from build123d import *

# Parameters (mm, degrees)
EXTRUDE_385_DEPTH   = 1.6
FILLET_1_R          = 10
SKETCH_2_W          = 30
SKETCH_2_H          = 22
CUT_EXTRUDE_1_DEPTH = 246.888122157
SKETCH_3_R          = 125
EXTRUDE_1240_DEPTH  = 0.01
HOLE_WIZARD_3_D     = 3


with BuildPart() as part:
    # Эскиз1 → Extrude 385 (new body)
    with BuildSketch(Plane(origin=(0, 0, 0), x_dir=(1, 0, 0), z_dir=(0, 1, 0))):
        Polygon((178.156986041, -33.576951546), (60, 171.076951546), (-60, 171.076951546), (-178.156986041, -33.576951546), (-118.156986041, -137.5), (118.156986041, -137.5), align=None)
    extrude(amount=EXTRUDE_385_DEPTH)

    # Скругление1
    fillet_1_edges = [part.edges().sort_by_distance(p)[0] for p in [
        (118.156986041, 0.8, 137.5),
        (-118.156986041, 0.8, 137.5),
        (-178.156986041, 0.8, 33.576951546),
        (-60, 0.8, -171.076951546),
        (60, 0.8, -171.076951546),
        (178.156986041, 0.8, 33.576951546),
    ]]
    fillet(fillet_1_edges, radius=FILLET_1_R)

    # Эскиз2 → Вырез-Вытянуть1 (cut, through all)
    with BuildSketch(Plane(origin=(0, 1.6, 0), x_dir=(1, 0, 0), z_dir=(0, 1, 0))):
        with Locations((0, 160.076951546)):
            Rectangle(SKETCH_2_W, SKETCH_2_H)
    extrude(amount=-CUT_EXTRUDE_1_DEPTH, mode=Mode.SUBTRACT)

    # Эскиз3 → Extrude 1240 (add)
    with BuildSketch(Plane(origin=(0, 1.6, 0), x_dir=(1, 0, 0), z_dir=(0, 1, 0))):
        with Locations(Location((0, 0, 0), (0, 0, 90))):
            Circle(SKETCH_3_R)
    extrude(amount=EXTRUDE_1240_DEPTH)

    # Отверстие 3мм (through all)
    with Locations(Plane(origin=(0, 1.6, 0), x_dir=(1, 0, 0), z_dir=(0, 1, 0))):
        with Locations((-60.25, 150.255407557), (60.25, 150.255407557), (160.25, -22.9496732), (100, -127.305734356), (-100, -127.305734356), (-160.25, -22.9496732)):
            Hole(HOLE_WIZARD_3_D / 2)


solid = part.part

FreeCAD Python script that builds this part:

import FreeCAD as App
import Part
import Sketcher

V = App.Vector
Q = App.Units.Quantity


def edges_at(feature, points):
    """Names of the edges that pass closest to the given points."""
    edges = feature.Shape.Edges
    near = lambda p: min(range(len(edges)), key=lambda i: edges[i].distToShape(Part.Vertex(*p))[0])
    return sorted({f"Edge{near(p) + 1}" for p in points})


def add_polygon(sketch, points):
    """Adds a closed chain of lines whose ends are joined by coincident constraints."""
    first, n = sketch.GeometryCount, len(points)
    for a, b in zip(points, points[1:] + points[:1]):
        sketch.addGeometry(Part.LineSegment(App.Vector(*a, 0), App.Vector(*b, 0)), False)
    for i in range(n):
        sketch.addConstraint(Sketcher.Constraint("Coincident", first + i, 2, first + (i + 1) % n, 1))

doc = App.newDocument("Part")
body = doc.addObject("PartDesign::Body", "Body")

sketch1 = body.newObject("Sketcher::SketchObject", "Sketch")
sketch1.AttachmentSupport = (doc.getObject("XZ_Plane"), [""])
sketch1.MapMode = "FlatFace"
add_polygon(sketch1, [(178.156986, 33.576952), (60, -171.076952), (-60, -171.076952), (-178.156986, 33.576952), (-118.156986, 137.5), (118.156986, 137.5)])
sketch1.addConstraint(Sketcher.Constraint("Horizontal", 1))
sketch1.addConstraint(Sketcher.Constraint("Horizontal", 4))
sketch1.addConstraint(Sketcher.Constraint("Symmetric", 2, 2, 5, 2, -2))
sketch1.addConstraint(Sketcher.Constraint("Parallel", 0, 3))
sketch1.addConstraint(Sketcher.Constraint("Parallel", 2, 5))
sketch1.addConstraint(Sketcher.Constraint("Equal", 0, 2))
sketch1.addConstraint(Sketcher.Constraint("DistanceX", 1, 2, 1, 1, 120.0))
sketch1.addConstraint(Sketcher.Constraint("Angle", 0, Q("-120 deg")))
sketch1.addConstraint(Sketcher.Constraint("Distance", 3, 120.0))
sketch1.addConstraint(Sketcher.Constraint("DistanceY", -1, 1, 3, 2, 137.5))
sketch1.addConstraint(Sketcher.Constraint("DistanceX", 4, 1, 4, 2, 236.313972))
pad1 = body.newObject("PartDesign::Pad", "Pad")
pad1.Profile = sketch1
pad1.Length = 1.6
pad1.Reversed = True
doc.recompute()

fillet = body.newObject("PartDesign::Fillet", "Fillet")
fillet.Base = (pad1, edges_at(pad1, [
    (118.157, 0.8, 137.5),
    (-118.157, 0.8, 137.5),
    (-178.157, 0.8, 33.577),
    (-60, 0.8, -171.077),
    (60, 0.8, -171.077),
    (178.157, 0.8, 33.577),
]))
fillet.Radius = 10

sketch2 = body.newObject("Sketcher::SketchObject", "Sketch001")
sketch2.AttachmentSupport = (doc.getObject("XZ_Plane"), [""])
sketch2.MapMode = "FlatFace"
sketch2.AttachmentOffset = App.Placement(V(0, 0, -1.6), App.Rotation())
add_polygon(sketch2, [(-15, -171.076952), (-15, -149.076952), (15, -149.076952), (15, -171.076952)])
sketch2.addConstraint(Sketcher.Constraint("Vertical", 0))
sketch2.addConstraint(Sketcher.Constraint("Horizontal", 1))
sketch2.addConstraint(Sketcher.Constraint("Vertical", 2))
sketch2.addConstraint(Sketcher.Constraint("Horizontal", 3))
sketch2.addConstraint(Sketcher.Constraint("DistanceX", 1, 1, 1, 2, 30.0))
sketch2.addConstraint(Sketcher.Constraint("DistanceY", 0, 1, 0, 2, 22.0))
sketch2.addConstraint(Sketcher.Constraint("DistanceX", 0, 2, -1, 1, 15.0))
sketch2.addConstraint(Sketcher.Constraint("DistanceY", 0, 2, -1, 1, 149.076952))
pocket1 = body.newObject("PartDesign::Pocket", "Pocket")
pocket1.Profile = sketch2
pocket1.Type = "ThroughAll"
pocket1.Reversed = True

sketch3 = body.newObject("Sketcher::SketchObject", "Sketch002")
sketch3.AttachmentSupport = (doc.getObject("XZ_Plane"), [""])
sketch3.MapMode = "FlatFace"
sketch3.AttachmentOffset = App.Placement(V(0, 0, -1.6), App.Rotation())
sketch3.addGeometry(Part.Circle(V(0, 0, 0), V(0, 0, 1), 125), False)
sketch3.addConstraint(Sketcher.Constraint("Coincident", 0, 3, -1, 1))
sketch3.addConstraint(Sketcher.Constraint("Diameter", 0, 250.0))
pad2 = body.newObject("PartDesign::Pad", "Pad001")
pad2.Profile = sketch3
pad2.Length = 0.01
pad2.Reversed = True

sketch4 = body.newObject("Sketcher::SketchObject", "Sketch003")
sketch4.AttachmentSupport = (doc.getObject("XZ_Plane"), [""])
sketch4.MapMode = "FlatFace"
sketch4.AttachmentOffset = App.Placement(V(0, 0, -1.6), App.Rotation())
sketch4.addGeometry(Part.Circle(V(-60.25, -150.255408, 0), V(0, 0, 1), 1.5), False)
sketch4.addGeometry(Part.Circle(V(60.25, -150.255408, 0), V(0, 0, 1), 1.5), False)
sketch4.addGeometry(Part.Circle(V(160.25, 22.949673, 0), V(0, 0, 1), 1.5), False)
sketch4.addGeometry(Part.Circle(V(100, 127.305734, 0), V(0, 0, 1), 1.5), False)
sketch4.addGeometry(Part.Circle(V(-100, 127.305734, 0), V(0, 0, 1), 1.5), False)
sketch4.addGeometry(Part.Circle(V(-160.25, 22.949673, 0), V(0, 0, 1), 1.5), False)
sketch4.addConstraint(Sketcher.Constraint("Equal", 0, 1))
sketch4.addConstraint(Sketcher.Constraint("Equal", 1, 2))
sketch4.addConstraint(Sketcher.Constraint("Equal", 2, 3))
sketch4.addConstraint(Sketcher.Constraint("Equal", 3, 4))
sketch4.addConstraint(Sketcher.Constraint("Equal", 4, 5))
sketch4.addConstraint(Sketcher.Constraint("Symmetric", 0, 3, 1, 3, -2))
sketch4.addConstraint(Sketcher.Constraint("Symmetric", 3, 3, 4, 3, -2))
sketch4.addConstraint(Sketcher.Constraint("Symmetric", 2, 3, 5, 3, -2))
sketch4.addConstraint(Sketcher.Constraint("Diameter", 0, 3.0))
sketch4.addConstraint(Sketcher.Constraint("DistanceX", -1, 1, 3, 3, 100.0))
sketch4.addConstraint(Sketcher.Constraint("DistanceX", 1, 3, 2, 3, 100.0))
sketch4.addConstraint(Sketcher.Constraint("DistanceX", 0, 3, 1, 3, 120.5))
sketch4.addConstraint(Sketcher.Constraint("DistanceY", 1, 3, 2, 3, 173.205081))
sketch4.addConstraint(Sketcher.Constraint("DistanceY", 2, 3, 3, 3, 104.356061))
sketch4.addConstraint(Sketcher.Constraint("DistanceY", 0, 3, -1, 1, 150.255408))
doc.recompute()
hole = body.newObject("PartDesign::Hole", "Hole")
hole.Profile = sketch4
hole.ThreadType = "None"
hole.Diameter = 3
hole.DepthType = "ThroughAll"
hole.Reversed = True

doc.recompute()
